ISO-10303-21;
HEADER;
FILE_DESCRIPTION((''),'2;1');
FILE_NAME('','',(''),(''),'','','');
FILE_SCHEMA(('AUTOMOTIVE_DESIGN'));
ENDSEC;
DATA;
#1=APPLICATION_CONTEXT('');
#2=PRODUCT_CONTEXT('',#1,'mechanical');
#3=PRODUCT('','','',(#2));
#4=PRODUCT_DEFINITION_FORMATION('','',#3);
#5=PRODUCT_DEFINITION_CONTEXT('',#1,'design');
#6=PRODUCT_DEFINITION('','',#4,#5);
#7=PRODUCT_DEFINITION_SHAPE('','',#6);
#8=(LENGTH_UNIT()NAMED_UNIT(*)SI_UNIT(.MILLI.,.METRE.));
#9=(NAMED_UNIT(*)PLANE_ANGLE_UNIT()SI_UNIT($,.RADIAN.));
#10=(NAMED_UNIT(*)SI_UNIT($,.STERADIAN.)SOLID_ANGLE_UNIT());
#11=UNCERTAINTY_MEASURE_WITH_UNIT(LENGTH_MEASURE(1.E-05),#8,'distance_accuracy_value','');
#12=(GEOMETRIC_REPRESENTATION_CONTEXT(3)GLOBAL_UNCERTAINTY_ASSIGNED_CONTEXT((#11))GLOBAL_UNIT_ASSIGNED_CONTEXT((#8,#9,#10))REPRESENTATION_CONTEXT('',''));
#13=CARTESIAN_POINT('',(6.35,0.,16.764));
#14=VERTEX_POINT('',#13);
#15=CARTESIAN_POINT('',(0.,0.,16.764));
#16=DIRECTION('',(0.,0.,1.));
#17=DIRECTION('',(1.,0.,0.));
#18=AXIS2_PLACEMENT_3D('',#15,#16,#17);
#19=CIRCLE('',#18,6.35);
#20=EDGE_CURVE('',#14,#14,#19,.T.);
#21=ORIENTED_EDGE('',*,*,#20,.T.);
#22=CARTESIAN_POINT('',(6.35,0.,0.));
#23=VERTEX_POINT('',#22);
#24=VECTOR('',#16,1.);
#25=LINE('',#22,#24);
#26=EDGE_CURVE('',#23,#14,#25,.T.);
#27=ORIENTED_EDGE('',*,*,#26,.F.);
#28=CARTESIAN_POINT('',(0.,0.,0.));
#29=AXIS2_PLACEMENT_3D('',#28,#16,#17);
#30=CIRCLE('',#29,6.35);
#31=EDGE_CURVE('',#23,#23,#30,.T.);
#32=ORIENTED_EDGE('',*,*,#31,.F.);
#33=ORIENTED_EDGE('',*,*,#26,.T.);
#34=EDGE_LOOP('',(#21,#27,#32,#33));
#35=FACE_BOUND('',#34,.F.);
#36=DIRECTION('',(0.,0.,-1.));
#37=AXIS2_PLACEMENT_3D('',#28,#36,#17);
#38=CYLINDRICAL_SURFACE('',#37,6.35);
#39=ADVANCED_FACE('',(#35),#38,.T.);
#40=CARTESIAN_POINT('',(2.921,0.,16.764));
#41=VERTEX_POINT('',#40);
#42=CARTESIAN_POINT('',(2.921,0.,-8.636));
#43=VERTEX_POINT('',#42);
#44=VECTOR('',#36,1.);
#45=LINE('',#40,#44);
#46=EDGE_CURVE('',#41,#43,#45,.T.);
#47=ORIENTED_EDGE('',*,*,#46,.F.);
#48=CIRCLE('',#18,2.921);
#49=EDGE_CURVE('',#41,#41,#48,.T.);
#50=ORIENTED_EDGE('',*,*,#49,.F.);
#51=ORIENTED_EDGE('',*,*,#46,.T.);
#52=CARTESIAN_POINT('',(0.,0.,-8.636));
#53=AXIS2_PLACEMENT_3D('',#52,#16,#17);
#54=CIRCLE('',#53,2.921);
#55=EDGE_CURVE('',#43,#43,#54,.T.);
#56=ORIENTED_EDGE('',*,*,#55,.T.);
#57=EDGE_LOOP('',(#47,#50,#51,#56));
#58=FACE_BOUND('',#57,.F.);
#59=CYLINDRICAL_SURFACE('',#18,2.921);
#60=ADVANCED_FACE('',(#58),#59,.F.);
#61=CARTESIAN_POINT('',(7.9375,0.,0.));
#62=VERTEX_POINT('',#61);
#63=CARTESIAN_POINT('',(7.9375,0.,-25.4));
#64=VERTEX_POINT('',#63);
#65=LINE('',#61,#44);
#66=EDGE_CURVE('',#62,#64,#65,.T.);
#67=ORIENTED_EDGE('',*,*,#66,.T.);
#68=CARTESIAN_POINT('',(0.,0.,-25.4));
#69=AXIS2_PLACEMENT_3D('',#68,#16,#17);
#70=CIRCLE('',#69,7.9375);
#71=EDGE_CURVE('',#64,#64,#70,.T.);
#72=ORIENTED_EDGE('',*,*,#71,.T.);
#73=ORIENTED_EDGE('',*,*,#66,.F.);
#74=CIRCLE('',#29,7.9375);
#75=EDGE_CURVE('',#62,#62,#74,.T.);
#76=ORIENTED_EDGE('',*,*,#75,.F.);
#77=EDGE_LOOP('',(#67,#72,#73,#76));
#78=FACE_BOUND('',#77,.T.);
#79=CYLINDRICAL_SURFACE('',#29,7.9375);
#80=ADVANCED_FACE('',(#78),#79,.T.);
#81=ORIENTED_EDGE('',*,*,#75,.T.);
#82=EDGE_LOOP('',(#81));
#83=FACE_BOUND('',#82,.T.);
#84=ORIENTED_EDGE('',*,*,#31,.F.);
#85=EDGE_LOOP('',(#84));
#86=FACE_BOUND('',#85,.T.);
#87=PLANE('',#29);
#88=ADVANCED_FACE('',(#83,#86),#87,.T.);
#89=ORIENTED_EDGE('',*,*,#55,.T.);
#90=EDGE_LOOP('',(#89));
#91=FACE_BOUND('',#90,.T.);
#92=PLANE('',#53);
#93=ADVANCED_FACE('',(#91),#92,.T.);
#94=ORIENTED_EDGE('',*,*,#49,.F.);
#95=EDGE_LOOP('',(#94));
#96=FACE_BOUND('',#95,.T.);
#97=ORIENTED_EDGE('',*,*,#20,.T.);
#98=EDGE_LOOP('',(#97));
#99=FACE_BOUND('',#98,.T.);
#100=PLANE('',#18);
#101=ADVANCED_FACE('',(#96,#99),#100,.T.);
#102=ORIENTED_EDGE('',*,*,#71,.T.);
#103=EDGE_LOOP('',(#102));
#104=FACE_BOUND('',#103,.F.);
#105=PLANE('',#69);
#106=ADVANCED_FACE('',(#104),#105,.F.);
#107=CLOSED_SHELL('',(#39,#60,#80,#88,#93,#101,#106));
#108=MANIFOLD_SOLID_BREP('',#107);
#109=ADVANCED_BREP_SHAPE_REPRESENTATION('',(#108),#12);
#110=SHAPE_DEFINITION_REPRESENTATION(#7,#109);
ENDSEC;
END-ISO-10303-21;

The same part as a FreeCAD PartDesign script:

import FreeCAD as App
import Part
import Sketcher

V = App.Vector
Q = App.Units.Quantity

doc = App.newDocument("Part")
body = doc.addObject("PartDesign::Body", "Body")

# Sketch on XY plane
sketch1 = doc.addObject("Sketcher::SketchObject", "Sketch")
body.addObject(sketch1)
sketch1.AttachmentSupport = (doc.XY_Plane, [""])
sketch1.MapMode = "FlatFace"
sketch1.addGeometry(Part.Circle(V(0, 0, 0), V(0, 0, 1), 8), False)
sketch1.addConstraint([
    Sketcher.Constraint("Coincident", 0, 3, -1, 1),
    Sketcher.Constraint("Diameter", 0, Q("0.625 in")),
])
pad1 = doc.addObject("PartDesign::Pad", "Pad")
body.addObject(pad1)
pad1.Profile = sketch1
pad1.Length = Q("1 in")
pad1.Reversed = True

# Sketch on XY plane
sketch2 = doc.addObject("Sketcher::SketchObject", "Sketch001")
body.addObject(sketch2)
sketch2.AttachmentSupport = (doc.XY_Plane, [""])
sketch2.MapMode = "FlatFace"
sketch2.addGeometry(Part.Circle(V(0, 0, 0), V(0, 0, 1), 6), False)
sketch2.addConstraint([
    Sketcher.Constraint("Coincident", 0, 3, -1, 1),
    Sketcher.Constraint("Diameter", 0, Q("0.5 in")),
])
pad2 = doc.addObject("PartDesign::Pad", "Pad001")
body.addObject(pad2)
pad2.Profile = sketch2
pad2.Length = Q("0.66 in")

# Sketch on XY plane
sketch3 = doc.addObject("Sketcher::SketchObject", "Sketch002")
body.addObject(sketch3)
sketch3.AttachmentSupport = (doc.XY_Plane, [""])
sketch3.MapMode = "FlatFace"
sketch3.AttachmentOffset = App.Placement(V(0, 0, 0.66 * 25.4), App.Rotation())
sketch3.addGeometry(Part.Circle(V(0, 0, 0), V(0, 0, 1), 2.9), False)
sketch3.addConstraint([
    Sketcher.Constraint("Coincident", 0, 3, -1, 1),
    Sketcher.Constraint("Diameter", 0, Q("0.23 in")),
])
pocket1 = doc.addObject("PartDesign::Pocket", "Pocket")
body.addObject(pocket1)
pocket1.Profile = sketch3
pocket1.Length = Q("1 in")

doc.recompute()
